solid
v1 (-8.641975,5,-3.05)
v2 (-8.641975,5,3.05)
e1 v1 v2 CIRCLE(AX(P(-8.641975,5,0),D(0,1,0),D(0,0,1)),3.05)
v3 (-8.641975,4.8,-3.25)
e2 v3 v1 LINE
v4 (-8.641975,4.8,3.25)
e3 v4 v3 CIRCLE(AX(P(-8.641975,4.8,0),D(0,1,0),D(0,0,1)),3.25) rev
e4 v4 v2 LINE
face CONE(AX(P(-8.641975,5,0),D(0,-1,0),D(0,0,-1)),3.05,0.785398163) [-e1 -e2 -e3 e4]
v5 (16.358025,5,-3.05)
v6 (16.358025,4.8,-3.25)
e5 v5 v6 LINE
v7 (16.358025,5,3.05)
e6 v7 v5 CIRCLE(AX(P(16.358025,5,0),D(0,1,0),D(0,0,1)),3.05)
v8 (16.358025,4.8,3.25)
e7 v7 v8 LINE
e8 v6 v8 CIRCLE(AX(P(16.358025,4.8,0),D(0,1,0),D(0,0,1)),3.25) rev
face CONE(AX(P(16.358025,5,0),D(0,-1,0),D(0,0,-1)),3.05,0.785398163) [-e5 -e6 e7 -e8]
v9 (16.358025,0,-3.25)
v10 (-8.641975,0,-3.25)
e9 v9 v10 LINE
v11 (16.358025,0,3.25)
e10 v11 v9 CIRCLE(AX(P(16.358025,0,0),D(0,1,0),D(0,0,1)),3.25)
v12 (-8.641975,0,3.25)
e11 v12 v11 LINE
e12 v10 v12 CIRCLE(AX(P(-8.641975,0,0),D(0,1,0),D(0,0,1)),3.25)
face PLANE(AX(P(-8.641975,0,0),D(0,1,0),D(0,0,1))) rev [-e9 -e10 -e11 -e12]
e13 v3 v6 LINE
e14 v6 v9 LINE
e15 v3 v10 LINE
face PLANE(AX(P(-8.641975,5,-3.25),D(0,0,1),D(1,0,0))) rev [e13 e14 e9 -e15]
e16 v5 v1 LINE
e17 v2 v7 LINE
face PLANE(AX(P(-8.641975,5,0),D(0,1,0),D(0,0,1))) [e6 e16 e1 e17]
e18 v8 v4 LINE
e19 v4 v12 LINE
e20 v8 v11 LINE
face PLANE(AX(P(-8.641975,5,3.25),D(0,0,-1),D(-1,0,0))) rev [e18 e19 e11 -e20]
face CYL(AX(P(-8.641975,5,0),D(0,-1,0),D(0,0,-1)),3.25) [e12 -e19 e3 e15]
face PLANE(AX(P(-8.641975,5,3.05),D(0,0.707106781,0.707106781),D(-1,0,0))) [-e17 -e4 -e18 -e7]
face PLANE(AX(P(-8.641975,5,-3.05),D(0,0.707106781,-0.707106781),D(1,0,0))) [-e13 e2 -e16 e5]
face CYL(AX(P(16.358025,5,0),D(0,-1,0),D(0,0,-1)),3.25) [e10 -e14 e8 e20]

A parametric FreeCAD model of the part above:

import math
import FreeCAD as App
import Part
import Sketcher


def edges_at(feature, points):
    """Names of the edges that pass closest to the given points."""
    edges = feature.Shape.Edges
    near = lambda p: min(range(len(edges)), key=lambda i: edges[i].distToShape(Part.Vertex(*p))[0])
    return sorted({f"Edge{near(p) + 1}" for p in points})

doc = App.newDocument("Part")
params = doc.addObject("Spreadsheet::Sheet", "Params")
for row, (alias, value) in enumerate([
    ("sketch1_width", "25 mm"),
    ("sketch1_radius", "3.25 mm"),
    ("pad1_length", "5 mm"),
    ("chamfer_size", "0.2 mm"),
], start=1):
    params.set(f"A{row}", alias)
    params.set(f"B{row}", "=" + value)
    params.setAlias(f"B{row}", alias)

body = doc.addObject("PartDesign::Body", "Body")

# Sketch on XZ plane
sketch1 = body.newObject("Sketcher::SketchObject", "Sketch")
sketch1.AttachmentSupport = (doc.getObject("XZ_Plane"), [""])
sketch1.MapMode = "FlatFace"
sketch1.addGeometry([
    Part.LineSegment(App.Vector(16.4, -3.2, 0), App.Vector(-8.6, -3.2, 0)),
    Part.ArcOfCircle(Part.Circle(App.Vector(-8.6, 0, 0), App.Vector(0, 0, 1), 3.2), math.radians(90), math.radians(270)),
    Part.LineSegment(App.Vector(-8.6, 3.2, 0), App.Vector(16.4, 3.2, 0)),
    Part.ArcOfCircle(Part.Circle(App.Vector(16.4, 0, 0), App.Vector(0, 0, 1), 3.2), math.radians(-90), math.radians(90)),
], False)
sketch1.addConstraint([
    Sketcher.Constraint("Tangent", 0, 2, 1, 2),
    Sketcher.Constraint("Tangent", 1, 1, 2, 1),
    Sketcher.Constraint("Tangent", 2, 2, 3, 2),
    Sketcher.Constraint("Tangent", 3, 1, 0, 1),
    Sketcher.Constraint("Horizontal", 0),
    Sketcher.Constraint("Horizontal", 2),
    Sketcher.Constraint("PointOnObject", 1, 3, -1),
    Sketcher.Constraint("DistanceX", 0, 2, 0, 1, 25.0),
    Sketcher.Constraint("Radius", 1, 3.25),
    Sketcher.Constraint("DistanceX", 1, 3, -1, 1, 8.641975),
])
sketch1.setExpression("Constraints[7]", "Params.sketch1_width")
sketch1.setExpression("Constraints[8]", "Params.sketch1_radius")
pad1 = body.newObject("PartDesign::Pad", "Pad")
pad1.Profile = sketch1
pad1.setExpression("Length", "Params.pad1_length")
pad1.Reversed = True
doc.recompute()

chamfer = body.newObject("PartDesign::Chamfer", "Chamfer")
chamfer.Base = (pad1, edges_at(pad1, [
    (19.608, 5, 0),
    (3.858, 5, -3.25),
    (-11.892, 5, 0),
    (3.858, 5, 3.25),
]))
chamfer.setExpression("Size", "Params.chamfer_size")

doc.recompute()
